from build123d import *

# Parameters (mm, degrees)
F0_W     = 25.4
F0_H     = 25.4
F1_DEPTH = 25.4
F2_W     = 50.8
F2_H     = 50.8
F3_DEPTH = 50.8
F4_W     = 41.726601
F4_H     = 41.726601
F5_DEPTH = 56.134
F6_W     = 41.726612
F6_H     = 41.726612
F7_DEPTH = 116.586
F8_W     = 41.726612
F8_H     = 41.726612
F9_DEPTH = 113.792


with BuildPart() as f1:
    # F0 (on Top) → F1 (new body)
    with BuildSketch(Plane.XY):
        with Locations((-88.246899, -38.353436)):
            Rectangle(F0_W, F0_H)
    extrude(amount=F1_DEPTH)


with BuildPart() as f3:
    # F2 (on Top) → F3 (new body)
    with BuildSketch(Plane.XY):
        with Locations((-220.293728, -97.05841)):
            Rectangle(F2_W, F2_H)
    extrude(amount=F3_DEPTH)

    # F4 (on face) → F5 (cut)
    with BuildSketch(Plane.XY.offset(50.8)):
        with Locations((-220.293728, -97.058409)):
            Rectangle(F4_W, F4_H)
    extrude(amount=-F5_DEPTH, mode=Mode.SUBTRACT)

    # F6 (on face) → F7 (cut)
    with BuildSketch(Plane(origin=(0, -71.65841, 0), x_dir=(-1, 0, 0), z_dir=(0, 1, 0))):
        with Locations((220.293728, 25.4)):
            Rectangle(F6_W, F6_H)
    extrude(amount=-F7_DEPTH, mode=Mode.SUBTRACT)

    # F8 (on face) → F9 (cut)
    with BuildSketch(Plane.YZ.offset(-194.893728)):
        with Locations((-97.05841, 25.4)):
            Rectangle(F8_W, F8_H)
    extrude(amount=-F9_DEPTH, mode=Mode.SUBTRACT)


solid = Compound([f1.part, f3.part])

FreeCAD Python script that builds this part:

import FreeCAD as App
import Part
import Sketcher
from FreeCAD import Vector
Q = App.Units.Quantity


def add_polygon(sketch, points):
    """Adds a closed chain of lines whose ends are joined by coincident constraints."""
    first, n = sketch.GeometryCount, len(points)
    for a, b in zip(points, points[1:] + points[:1]):
        sketch.addGeometry(Part.LineSegment(App.Vector(*a, 0), App.Vector(*b, 0)), False)
    for i in range(n):
        sketch.addConstraint(Sketcher.Constraint("Coincident", first + i, 2, first + (i + 1) % n, 1))

doc = App.newDocument("Part")
body = doc.addObject("PartDesign::Body", "Body")

# Sketch on XY plane
sketch1 = doc.addObject("Sketcher::SketchObject", "Sketch")
body.addObject(sketch1)
sketch1.AttachmentSupport = (doc.XY_Plane, [""])
sketch1.MapMode = "FlatFace"
add_polygon(sketch1, [(-101, -26), (-101, -51), (-76, -51), (-76, -26)])  # lines 0-3
sketch1.addConstraint([
    Sketcher.Constraint("Vertical", 0),
    Sketcher.Constraint("Horizontal", 1),
    Sketcher.Constraint("Vertical", 2),
    Sketcher.Constraint("Horizontal", 3),
    Sketcher.Constraint("Equal", 3, 0),
    Sketcher.Constraint("DistanceX", 1, 1, 1, 2, Q("1 in")),
    Sketcher.Constraint("DistanceX", 0, 2, -1, 1, Q("100.946899 mm")),
    Sketcher.Constraint("DistanceY", 0, 2, -1, 1, Q("51.053436 mm")),
])
pad1 = doc.addObject("PartDesign::Pad", "Pad")
body.addObject(pad1)
pad1.Profile = sketch1
pad1.Length = Q("1 in")
body2 = doc.addObject("PartDesign::Body", "Body001")

# Sketch on XY plane
sketch2 = doc.addObject("Sketcher::SketchObject", "Sketch001")
body2.addObject(sketch2)
sketch2.AttachmentSupport = (doc.getObject("XY_Plane001"), [""])
sketch2.MapMode = "FlatFace"
add_polygon(sketch2, [(-246, -72), (-246, -122), (-195, -122), (-195, -72)])  # lines 0-3
sketch2.addConstraint([
    Sketcher.Constraint("Vertical", 0),
    Sketcher.Constraint("Horizontal", 1),
    Sketcher.Constraint("Vertical", 2),
    Sketcher.Constraint("Horizontal", 3),
    Sketcher.Constraint("Equal", 3, 0),
    Sketcher.Constraint("DistanceX", 1, 1, 1, 2, Q("2 in")),
    Sketcher.Constraint("DistanceX", 0, 2, -1, 1, Q("245.693728 mm")),
    Sketcher.Constraint("DistanceY", 0, 2, -1, 1, Q("122.45841 mm")),
])
pad2 = doc.addObject("PartDesign::Pad", "Pad001")
body2.addObject(pad2)
pad2.Profile = sketch2
pad2.Length = Q("2 in")

# Sketch on XY plane
sketch3 = doc.addObject("Sketcher::SketchObject", "Sketch002")
body2.addObject(sketch3)
sketch3.AttachmentSupport = (doc.getObject("XY_Plane001"), [""])
sketch3.MapMode = "FlatFace"
sketch3.AttachmentOffset = App.Placement(Vector(0, 0, 2 * 25.4), App.Rotation())
add_polygon(sketch3, [(-241, -76), (-241, -118), (-199, -118), (-199, -76)])  # lines 0-3
sketch3.addConstraint([
    Sketcher.Constraint("Vertical", 0),
    Sketcher.Constraint("Horizontal", 1),
    Sketcher.Constraint("Vertical", 2),
    Sketcher.Constraint("Horizontal", 3),
    Sketcher.Constraint("Equal", 3, 0),
    Sketcher.Constraint("DistanceX", 1, 1, 1, 2, Q("41.726601 mm")),
    Sketcher.Constraint("DistanceX", 0, 2, -1, 1, Q("241.157028 mm")),
    Sketcher.Constraint("DistanceY", 0, 2, -1, 1, Q("117.92171 mm")),
])
pocket1 = doc.addObject("PartDesign::Pocket", "Pocket")
body2.addObject(pocket1)
pocket1.Profile = sketch3
pocket1.Length = Q("2.21 in")

# Sketch on XZ plane
sketch4 = doc.addObject("Sketcher::SketchObject", "Sketch003")
body2.addObject(sketch4)
sketch4.AttachmentSupport = (doc.getObject("XZ_Plane001"), [""])
sketch4.MapMode = "FlatFace"
sketch4.AttachmentOffset = App.Placement(Vector(0, 0, 71.65841), App.Rotation())
add_polygon(sketch4, [(-199, 46), (-199, 5), (-241, 5), (-241, 46)])  # lines 0-3
sketch4.addConstraint([
    Sketcher.Constraint("Vertical", 0),
    Sketcher.Constraint("Horizontal", 1),
    Sketcher.Constraint("Vertical", 2),
    Sketcher.Constraint("Horizontal", 3),
    Sketcher.Constraint("Equal", 3, 0),
    Sketcher.Constraint("DistanceX", 1, 2, 1, 1, Q("41.726612 mm")),
    Sketcher.Constraint("DistanceX", 0, 2, -1, 1, Q("199.430422 mm")),
    Sketcher.Constraint("DistanceY", -1, 1, 0, 2, Q("4.536694 mm")),
])
pocket2 = doc.addObject("PartDesign::Pocket", "Pocket001")
body2.addObject(pocket2)
pocket2.Profile = sketch4
pocket2.Length = Q("4.59 in")
pocket2.Reversed = True

# Sketch on YZ plane
sketch5 = doc.addObject("Sketcher::SketchObject", "Sketch004")
body2.addObject(sketch5)
sketch5.AttachmentSupport = (doc.getObject("YZ_Plane001"), [""])
sketch5.MapMode = "FlatFace"
sketch5.AttachmentOffset = App.Placement(Vector(0, 0, -194.893728), App.Rotation())
add_polygon(sketch5, [(-118, 46), (-118, 5), (-76, 5), (-76, 46)])  # lines 0-3
sketch5.addConstraint([
    Sketcher.Constraint("Vertical", 0),
    Sketcher.Constraint("Horizontal", 1),
    Sketcher.Constraint("Vertical", 2),
    Sketcher.Constraint("Horizontal", 3),
    Sketcher.Constraint("Equal", 3, 0),
    Sketcher.Constraint("DistanceX", 1, 1, 1, 2, Q("41.726612 mm")),
    Sketcher.Constraint("DistanceX", 0, 2, -1, 1, Q("117.921716 mm")),
    Sketcher.Constraint("DistanceY", -1, 1, 0, 2, Q("4.536694 mm")),
])
pocket3 = doc.addObject("PartDesign::Pocket", "Pocket002")
body2.addObject(pocket3)
pocket3.Profile = sketch5
pocket3.Length = Q("4.48 in")

doc.recompute()
